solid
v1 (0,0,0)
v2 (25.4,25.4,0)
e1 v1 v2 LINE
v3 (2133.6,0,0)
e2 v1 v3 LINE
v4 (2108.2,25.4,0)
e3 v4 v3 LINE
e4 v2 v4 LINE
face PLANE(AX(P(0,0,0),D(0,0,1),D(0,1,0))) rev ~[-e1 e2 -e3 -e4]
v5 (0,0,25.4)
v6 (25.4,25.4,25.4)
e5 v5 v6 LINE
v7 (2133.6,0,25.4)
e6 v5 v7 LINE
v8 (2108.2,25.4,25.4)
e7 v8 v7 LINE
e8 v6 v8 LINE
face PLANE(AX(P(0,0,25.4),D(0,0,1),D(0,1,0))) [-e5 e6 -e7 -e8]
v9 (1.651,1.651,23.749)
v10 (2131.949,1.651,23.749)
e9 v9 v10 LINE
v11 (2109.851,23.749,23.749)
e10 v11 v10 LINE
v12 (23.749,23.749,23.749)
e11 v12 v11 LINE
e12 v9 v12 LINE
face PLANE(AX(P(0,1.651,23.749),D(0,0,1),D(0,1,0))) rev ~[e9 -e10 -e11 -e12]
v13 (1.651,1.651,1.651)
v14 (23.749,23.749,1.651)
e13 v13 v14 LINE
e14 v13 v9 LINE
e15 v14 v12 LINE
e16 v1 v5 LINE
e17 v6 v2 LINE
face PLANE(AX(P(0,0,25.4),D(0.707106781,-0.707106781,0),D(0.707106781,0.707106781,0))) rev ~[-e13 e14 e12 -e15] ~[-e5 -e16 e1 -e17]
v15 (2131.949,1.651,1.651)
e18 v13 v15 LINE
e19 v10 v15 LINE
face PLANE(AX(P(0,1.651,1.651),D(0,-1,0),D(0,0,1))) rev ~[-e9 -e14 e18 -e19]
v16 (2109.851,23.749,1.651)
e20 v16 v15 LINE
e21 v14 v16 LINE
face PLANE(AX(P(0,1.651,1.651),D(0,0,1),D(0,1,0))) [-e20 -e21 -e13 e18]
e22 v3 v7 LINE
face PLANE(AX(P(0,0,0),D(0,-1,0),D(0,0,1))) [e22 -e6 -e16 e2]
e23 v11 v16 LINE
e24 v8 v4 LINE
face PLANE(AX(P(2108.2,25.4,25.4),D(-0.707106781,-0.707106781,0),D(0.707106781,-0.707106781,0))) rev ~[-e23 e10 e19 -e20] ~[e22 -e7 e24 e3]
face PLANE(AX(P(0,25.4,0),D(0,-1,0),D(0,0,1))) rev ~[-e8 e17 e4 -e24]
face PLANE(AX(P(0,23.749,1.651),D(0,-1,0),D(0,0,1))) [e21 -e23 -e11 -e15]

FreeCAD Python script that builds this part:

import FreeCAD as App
import Part
import Sketcher
from FreeCAD import Vector
Q = App.Units.Quantity


def add_polygon(sketch, points):
    """Adds a closed chain of lines whose ends are joined by coincident constraints."""
    first, n = sketch.GeometryCount, len(points)
    for a, b in zip(points, points[1:] + points[:1]):
        sketch.addGeometry(Part.LineSegment(App.Vector(*a, 0), App.Vector(*b, 0)), False)
    for i in range(n):
        sketch.addConstraint(Sketcher.Constraint("Coincident", first + i, 2, first + (i + 1) % n, 1))

doc = App.newDocument("Part")
params = doc.addObject("Spreadsheet::Sheet", "Params")
for row, (alias, value) in enumerate([
    ("sketch1_width", "1 in"),
    ("sketch1_width2", "0.87 in"),
    ("pad1_length", "84 in"),
    ("sketch2_width", "1 in"),
    ("sketch3_width", "1 in"),
], start=1):
    params.set(f"A{row}", alias)
    params.set(f"B{row}", "=" + value)
    params.setAlias(f"B{row}", alias)

body = doc.addObject("PartDesign::Body", "Body")

sketch1 = doc.addObject("Sketcher::SketchObject", "Sketch")
body.addObject(sketch1)
sketch1.AttachmentSupport = (doc.YZ_Plane, [""])
sketch1.MapMode = "FlatFace"
add_polygon(sketch1, [(0, 25), (0, 0), (25, 0), (25, 25)])
add_polygon(sketch1, [(24, 2), (2, 2), (2, 24), (24, 24)])
sketch1.addConstraint([
    Sketcher.Constraint("Vertical", 0),
    Sketcher.Constraint("Horizontal", 1),
    Sketcher.Constraint("Vertical", 2),
    Sketcher.Constraint("Horizontal", 3),
    Sketcher.Constraint("Horizontal", 4),
    Sketcher.Constraint("Vertical", 5),
    Sketcher.Constraint("Horizontal", 6),
    Sketcher.Constraint("Vertical", 7),
    Sketcher.Constraint("Coincident", 0, 2, -1, 1),
    Sketcher.Constraint("Equal", 3, 0),
    Sketcher.Constraint("Equal", 6, 5),
    Sketcher.Constraint("DistanceX", 1, 1, 1, 2, Q("1 in")),
    Sketcher.Constraint("DistanceX", 4, 2, 4, 1, Q("0.87 in")),
    Sketcher.Constraint("DistanceX", -1, 1, 4, 2, Q("0.065 in")),
    Sketcher.Constraint("DistanceY", -1, 1, 4, 2, Q("0.065 in")),
])
sketch1.setExpression("Constraints[19]", "Params.sketch1_width")
sketch1.setExpression("Constraints[20]", "Params.sketch1_width2")
pad1 = doc.addObject("PartDesign::Pad", "Pad")
body.addObject(pad1)
pad1.Profile = sketch1
pad1.setExpression("Length", "Params.pad1_length")

sketch2 = doc.addObject("Sketcher::SketchObject", "Sketch001")
body.addObject(sketch2)
sketch2.AttachmentSupport = (doc.XY_Plane, [""])
sketch2.MapMode = "FlatFace"
sketch2.AttachmentOffset = App.Placement(Vector(0, 0, 1 * 25.4), App.Rotation())
add_polygon(sketch2, [(2108, 25), (2134, 0), (2134, 25)])
sketch2.addConstraint([
    Sketcher.Constraint("Vertical", 1),
    Sketcher.Constraint("Horizontal", 2),
    Sketcher.Constraint("PointOnObject", 0, 2, -1),
    Sketcher.Constraint("Equal", 2, 1),
    Sketcher.Constraint("DistanceX", 2, 2, 2, 1, Q("1 in")),
    Sketcher.Constraint("DistanceX", -1, 1, 0, 2, Q("84 in")),
])
sketch2.setExpression("Constraints[7]", "Params.sketch2_width")
pocket1 = doc.addObject("PartDesign::Pocket", "Pocket")
body.addObject(pocket1)
pocket1.Profile = sketch2
pocket1.Type = "ThroughAll"

sketch3 = doc.addObject("Sketcher::SketchObject", "Sketch002")
body.addObject(sketch3)
sketch3.AttachmentSupport = (doc.XY_Plane, [""])
sketch3.MapMode = "FlatFace"
sketch3.AttachmentOffset = App.Placement(Vector(0, 0, 1 * 25.4), App.Rotation())
add_polygon(sketch3, [(0, 25), (0, 0), (25, 25)])
sketch3.addConstraint([
    Sketcher.Constraint("Vertical", 0),
    Sketcher.Constraint("Horizontal", 2),
    Sketcher.Constraint("Coincident", 0, 2, -1, 1),
    Sketcher.Constraint("Equal", 2, 0),
    Sketcher.Constraint("DistanceX", 2, 2, 2, 1, Q("1 in")),
])
sketch3.setExpression("Constraints[7]", "Params.sketch3_width")
pocket2 = doc.addObject("PartDesign::Pocket", "Pocket001")
body.addObject(pocket2)
pocket2.Profile = sketch3
pocket2.Type = "ThroughAll"

doc.recompute()
